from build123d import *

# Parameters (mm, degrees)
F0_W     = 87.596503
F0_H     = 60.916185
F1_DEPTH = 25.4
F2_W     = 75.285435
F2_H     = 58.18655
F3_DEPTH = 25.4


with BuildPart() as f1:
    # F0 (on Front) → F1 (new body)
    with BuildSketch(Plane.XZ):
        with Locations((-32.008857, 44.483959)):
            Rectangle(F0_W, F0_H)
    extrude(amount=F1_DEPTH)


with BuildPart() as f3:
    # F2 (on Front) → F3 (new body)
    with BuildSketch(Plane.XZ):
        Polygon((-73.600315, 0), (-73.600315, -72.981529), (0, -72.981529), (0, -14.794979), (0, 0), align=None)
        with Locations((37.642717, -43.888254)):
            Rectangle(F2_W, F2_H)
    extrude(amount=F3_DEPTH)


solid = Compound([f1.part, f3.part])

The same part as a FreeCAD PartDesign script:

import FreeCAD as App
import Part
import Sketcher
from FreeCAD import Vector
Q = App.Units.Quantity

doc = App.newDocument("Part")
body = doc.addObject("PartDesign::Body", "Body")

sketch1 = body.newObject("Sketcher::SketchObject", "Sketch")
sketch1.AttachmentSupport = (doc.getObject("XZ_Plane"), [""])
sketch1.MapMode = "FlatFace"
sketch1.addGeometry(Part.LineSegment(Vector(-76, 75, 0), Vector(-76, 14, 0)), False)
sketch1.addGeometry(Part.LineSegment(Vector(-76, 14, 0), Vector(12, 14, 0)), False)
sketch1.addGeometry(Part.LineSegment(Vector(12, 14, 0), Vector(12, 75, 0)), False)
sketch1.addGeometry(Part.LineSegment(Vector(12, 75, 0), Vector(-76, 75, 0)), False)
sketch1.addConstraint(Sketcher.Constraint("Coincident", 0, 2, 1, 1))
sketch1.addConstraint(Sketcher.Constraint("Coincident", 1, 2, 2, 1))
sketch1.addConstraint(Sketcher.Constraint("Coincident", 2, 2, 3, 1))
sketch1.addConstraint(Sketcher.Constraint("Coincident", 3, 2, 0, 1))
sketch1.addConstraint(Sketcher.Constraint("Vertical", 0))
sketch1.addConstraint(Sketcher.Constraint("Horizontal", 1))
sketch1.addConstraint(Sketcher.Constraint("Vertical", 2))
sketch1.addConstraint(Sketcher.Constraint("Horizontal", 3))
sketch1.addConstraint(Sketcher.Constraint("DistanceX", 1, 1, 1, 2, Q("87.596503 mm")))
sketch1.addConstraint(Sketcher.Constraint("DistanceY", 0, 2, 0, 1, Q("60.916185 mm")))
sketch1.addConstraint(Sketcher.Constraint("DistanceX", 0, 2, -1, 1, Q("75.807108 mm")))
sketch1.addConstraint(Sketcher.Constraint("DistanceY", -1, 1, 2, 2, Q("74.942052 mm")))
pad1 = body.newObject("PartDesign::Pad", "Pad")
pad1.Profile = sketch1
pad1.Length = Q("1 in")
body2 = doc.addObject("PartDesign::Body", "Body001")

sketch2 = body2.newObject("Sketcher::SketchObject", "Sketch001")
sketch2.AttachmentSupport = (doc.getObject("XZ_Plane001"), [""])
sketch2.MapMode = "FlatFace"
sketch2.addGeometry(Part.LineSegment(Vector(0, 0, 0), Vector(-74, 0, 0)), False)
sketch2.addGeometry(Part.LineSegment(Vector(-74, 0, 0), Vector(-74, -73, 0)), False)
sketch2.addGeometry(Part.LineSegment(Vector(-74, -73, 0), Vector(75, -73, 0)), False)
sketch2.addGeometry(Part.LineSegment(Vector(75, -73, 0), Vector(75, -15, 0)), False)
sketch2.addGeometry(Part.LineSegment(Vector(75, -15, 0), Vector(0, -15, 0)), False)
sketch2.addGeometry(Part.LineSegment(Vector(0, -15, 0), Vector(0, 0, 0)), False)
sketch2.addConstraint(Sketcher.Constraint("Coincident", 0, 2, 1, 1))
sketch2.addConstraint(Sketcher.Constraint("Coincident", 1, 2, 2, 1))
sketch2.addConstraint(Sketcher.Constraint("Coincident", 2, 2, 3, 1))
sketch2.addConstraint(Sketcher.Constraint("Coincident", 3, 2, 4, 1))
sketch2.addConstraint(Sketcher.Constraint("Coincident", 4, 2, 5, 1))
sketch2.addConstraint(Sketcher.Constraint("Coincident", 5, 2, 0, 1))
sketch2.addConstraint(Sketcher.Constraint("Horizontal", 0))
sketch2.addConstraint(Sketcher.Constraint("Vertical", 1))
sketch2.addConstraint(Sketcher.Constraint("Horizontal", 2))
sketch2.addConstraint(Sketcher.Constraint("Vertical", 3))
sketch2.addConstraint(Sketcher.Constraint("Horizontal", 4))
sketch2.addConstraint(Sketcher.Constraint("Vertical", 5))
sketch2.addConstraint(Sketcher.Constraint("Coincident", 5, 2, -1, 1))
sketch2.addConstraint(Sketcher.Constraint("DistanceX", 2, 1, 2, 2, Q("148.885749 mm")))
sketch2.addConstraint(Sketcher.Constraint("DistanceY", 1, 2, 1, 1, Q("72.981529 mm")))
sketch2.addConstraint(Sketcher.Constraint("DistanceY", 3, 1, 3, 2, Q("58.18655 mm")))
sketch2.addConstraint(Sketcher.Constraint("DistanceX", 0, 2, 0, 1, Q("73.600315 mm")))
pad2 = body2.newObject("PartDesign::Pad", "Pad001")
pad2.Profile = sketch2
pad2.Length = Q("1 in")

doc.recompute()
